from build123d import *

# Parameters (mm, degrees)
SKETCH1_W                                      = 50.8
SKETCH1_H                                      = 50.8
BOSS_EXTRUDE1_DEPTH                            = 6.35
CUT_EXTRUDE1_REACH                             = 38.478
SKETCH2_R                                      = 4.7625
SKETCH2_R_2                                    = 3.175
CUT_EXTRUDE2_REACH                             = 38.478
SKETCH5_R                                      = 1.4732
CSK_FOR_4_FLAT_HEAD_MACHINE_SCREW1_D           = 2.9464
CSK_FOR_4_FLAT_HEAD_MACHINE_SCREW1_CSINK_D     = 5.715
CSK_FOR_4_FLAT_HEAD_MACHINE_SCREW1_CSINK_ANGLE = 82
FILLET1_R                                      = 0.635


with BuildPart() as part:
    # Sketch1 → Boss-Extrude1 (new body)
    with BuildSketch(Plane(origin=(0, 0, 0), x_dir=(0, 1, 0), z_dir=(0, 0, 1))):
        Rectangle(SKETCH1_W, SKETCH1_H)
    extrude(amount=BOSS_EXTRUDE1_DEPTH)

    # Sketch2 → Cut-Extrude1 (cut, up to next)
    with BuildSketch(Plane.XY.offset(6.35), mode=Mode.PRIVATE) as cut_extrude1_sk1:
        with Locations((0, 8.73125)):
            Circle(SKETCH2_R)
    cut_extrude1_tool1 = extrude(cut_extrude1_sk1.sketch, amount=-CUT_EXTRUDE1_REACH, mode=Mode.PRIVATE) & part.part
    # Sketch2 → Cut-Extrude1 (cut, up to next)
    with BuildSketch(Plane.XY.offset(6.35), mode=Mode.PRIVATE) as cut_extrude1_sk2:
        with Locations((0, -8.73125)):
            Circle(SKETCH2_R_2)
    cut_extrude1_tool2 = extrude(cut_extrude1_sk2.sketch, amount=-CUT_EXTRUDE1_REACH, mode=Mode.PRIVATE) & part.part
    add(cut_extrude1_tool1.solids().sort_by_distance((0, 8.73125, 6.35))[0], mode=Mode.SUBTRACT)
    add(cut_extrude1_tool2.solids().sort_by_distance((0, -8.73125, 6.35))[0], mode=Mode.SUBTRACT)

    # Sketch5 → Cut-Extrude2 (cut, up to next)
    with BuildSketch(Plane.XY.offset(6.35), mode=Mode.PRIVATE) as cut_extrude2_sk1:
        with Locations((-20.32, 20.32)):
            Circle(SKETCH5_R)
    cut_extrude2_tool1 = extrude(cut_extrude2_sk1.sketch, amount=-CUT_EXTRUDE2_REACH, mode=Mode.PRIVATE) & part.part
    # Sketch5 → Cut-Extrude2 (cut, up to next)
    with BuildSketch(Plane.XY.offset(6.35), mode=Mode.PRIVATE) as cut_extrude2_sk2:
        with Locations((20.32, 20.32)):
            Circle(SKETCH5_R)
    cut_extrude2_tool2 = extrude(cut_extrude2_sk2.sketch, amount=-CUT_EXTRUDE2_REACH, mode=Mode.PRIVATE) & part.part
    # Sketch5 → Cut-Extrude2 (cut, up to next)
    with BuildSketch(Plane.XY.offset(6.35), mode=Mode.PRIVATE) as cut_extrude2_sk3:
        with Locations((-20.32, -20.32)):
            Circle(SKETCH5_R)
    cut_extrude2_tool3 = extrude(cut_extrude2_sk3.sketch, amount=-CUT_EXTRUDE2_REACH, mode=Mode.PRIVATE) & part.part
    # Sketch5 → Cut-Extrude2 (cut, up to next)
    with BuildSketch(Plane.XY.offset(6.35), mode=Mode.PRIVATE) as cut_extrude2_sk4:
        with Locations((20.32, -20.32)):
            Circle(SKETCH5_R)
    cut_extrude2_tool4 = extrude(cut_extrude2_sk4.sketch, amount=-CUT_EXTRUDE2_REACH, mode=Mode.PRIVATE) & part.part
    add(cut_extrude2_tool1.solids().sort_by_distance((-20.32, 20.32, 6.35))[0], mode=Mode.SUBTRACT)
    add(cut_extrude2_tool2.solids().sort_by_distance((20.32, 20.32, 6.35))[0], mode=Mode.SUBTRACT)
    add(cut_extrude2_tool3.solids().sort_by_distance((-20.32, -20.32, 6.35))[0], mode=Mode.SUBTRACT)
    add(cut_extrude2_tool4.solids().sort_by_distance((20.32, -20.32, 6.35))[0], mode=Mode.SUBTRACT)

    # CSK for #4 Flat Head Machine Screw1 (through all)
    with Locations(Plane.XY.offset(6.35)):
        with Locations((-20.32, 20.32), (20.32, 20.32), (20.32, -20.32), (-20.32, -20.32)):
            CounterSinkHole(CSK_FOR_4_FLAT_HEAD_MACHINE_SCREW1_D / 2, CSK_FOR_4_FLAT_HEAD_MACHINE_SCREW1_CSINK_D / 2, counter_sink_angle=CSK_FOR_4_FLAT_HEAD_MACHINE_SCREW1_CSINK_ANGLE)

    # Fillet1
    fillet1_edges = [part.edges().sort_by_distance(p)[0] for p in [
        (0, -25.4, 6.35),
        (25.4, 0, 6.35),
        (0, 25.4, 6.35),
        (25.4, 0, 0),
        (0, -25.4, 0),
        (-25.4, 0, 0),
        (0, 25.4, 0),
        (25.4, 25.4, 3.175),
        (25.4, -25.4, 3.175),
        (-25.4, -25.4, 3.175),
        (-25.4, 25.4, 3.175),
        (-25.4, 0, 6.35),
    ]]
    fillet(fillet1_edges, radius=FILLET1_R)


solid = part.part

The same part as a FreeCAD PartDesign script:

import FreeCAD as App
import Part
import Sketcher

V = App.Vector
Q = App.Units.Quantity


def edges_at(feature, points):
    """Names of the edges that pass closest to the given points."""
    edges = feature.Shape.Edges
    near = lambda p: min(range(len(edges)), key=lambda i: edges[i].distToShape(Part.Vertex(*p))[0])
    return sorted({f"Edge{near(p) + 1}" for p in points})


def add_polygon(sketch, points):
    """Adds a closed chain of lines whose ends are joined by coincident constraints."""
    first, n = sketch.GeometryCount, len(points)
    for a, b in zip(points, points[1:] + points[:1]):
        sketch.addGeometry(Part.LineSegment(App.Vector(*a, 0), App.Vector(*b, 0)), False)
    for i in range(n):
        sketch.addConstraint(Sketcher.Constraint("Coincident", first + i, 2, first + (i + 1) % n, 1))

doc = App.newDocument("Part")
body = doc.addObject("PartDesign::Body", "Body")

sketch1 = body.newObject("Sketcher::SketchObject", "Sketch")
sketch1.AttachmentSupport = (doc.getObject("XY_Plane"), [""])
sketch1.MapMode = "FlatFace"
add_polygon(sketch1, [(-25, -25), (25, -25), (25, 25), (-25, 25)])
sketch1.addConstraint(Sketcher.Constraint("Horizontal", 0))
sketch1.addConstraint(Sketcher.Constraint("Vertical", 1))
sketch1.addConstraint(Sketcher.Constraint("Horizontal", 2))
sketch1.addConstraint(Sketcher.Constraint("Vertical", 3))
sketch1.addConstraint(Sketcher.Constraint("Symmetric", 0, 2, 2, 2, -1, 1))
sketch1.addConstraint(Sketcher.Constraint("Equal", 2, 1))
sketch1.addConstraint(Sketcher.Constraint("DistanceX", 0, 1, 0, 2, Q("2 in")))
pad1 = body.newObject("PartDesign::Pad", "Pad")
pad1.Profile = sketch1
pad1.Length = Q("0.25 in")

sketch2 = body.newObject("Sketcher::SketchObject", "Sketch001")
sketch2.AttachmentSupport = (doc.getObject("XY_Plane"), [""])
sketch2.MapMode = "FlatFace"
sketch2.AttachmentOffset = App.Placement(V(0, 0, 0.25 * 25.4), App.Rotation())
sketch2.addGeometry(Part.Circle(V(0, 8.7, 0), V(0, 0, 1), 4.8), False)
sketch2.addConstraint(Sketcher.Constraint("PointOnObject", 0, 3, -2))
sketch2.addConstraint(Sketcher.Constraint("Diameter", 0, Q("0.375 in")))
sketch2.addConstraint(Sketcher.Constraint("DistanceY", -1, 1, 0, 3, Q("0.34375 in")))
pocket1 = body.newObject("PartDesign::Pocket", "Pocket")
pocket1.Profile = sketch2
pocket1.Type = "UpToFirst"

sketch3 = body.newObject("Sketcher::SketchObject", "Sketch002")
sketch3.AttachmentSupport = (doc.getObject("XY_Plane"), [""])
sketch3.MapMode = "FlatFace"
sketch3.AttachmentOffset = App.Placement(V(0, 0, 0.25 * 25.4), App.Rotation())
sketch3.addGeometry(Part.Circle(V(0, -8.7, 0), V(0, 0, 1), 3.2), False)
sketch3.addConstraint(Sketcher.Constraint("PointOnObject", 0, 3, -2))
sketch3.addConstraint(Sketcher.Constraint("Diameter", 0, Q("0.25 in")))
sketch3.addConstraint(Sketcher.Constraint("DistanceY", 0, 3, -1, 1, Q("0.34375 in")))
pocket2 = body.newObject("PartDesign::Pocket", "Pocket001")
pocket2.Profile = sketch3
pocket2.Type = "UpToFirst"

sketch4 = body.newObject("Sketcher::SketchObject", "Sketch003")
sketch4.AttachmentSupport = (doc.getObject("XY_Plane"), [""])
sketch4.MapMode = "FlatFace"
sketch4.AttachmentOffset = App.Placement(V(0, 0, 0.25 * 25.4), App.Rotation())
sketch4.addGeometry(Part.Circle(V(-20.3, 20.3, 0), V(0, 0, 1), 1.5), False)
sketch4.addConstraint(Sketcher.Constraint("Diameter", 0, Q("0.116 in")))
sketch4.addConstraint(Sketcher.Constraint("DistanceX", 0, 3, -1, 1, Q("0.8 in")))
sketch4.addConstraint(Sketcher.Constraint("DistanceY", -1, 1, 0, 3, Q("0.8 in")))
pocket3 = body.newObject("PartDesign::Pocket", "Pocket002")
pocket3.Profile = sketch4
pocket3.Type = "UpToFirst"

sketch5 = body.newObject("Sketcher::SketchObject", "Sketch004")
sketch5.AttachmentSupport = (doc.getObject("XY_Plane"), [""])
sketch5.MapMode = "FlatFace"
sketch5.AttachmentOffset = App.Placement(V(0, 0, 0.25 * 25.4), App.Rotation())
sketch5.addGeometry(Part.Circle(V(20.3, 20.3, 0), V(0, 0, 1), 1.5), False)
sketch5.addConstraint(Sketcher.Constraint("Diameter", 0, Q("0.116 in")))
sketch5.addConstraint(Sketcher.Constraint("DistanceX", -1, 1, 0, 3, Q("0.8 in")))
sketch5.addConstraint(Sketcher.Constraint("DistanceY", -1, 1, 0, 3, Q("0.8 in")))
pocket4 = body.newObject("PartDesign::Pocket", "Pocket003")
pocket4.Profile = sketch5
pocket4.Type = "UpToFirst"

sketch6 = body.newObject("Sketcher::SketchObject", "Sketch005")
sketch6.AttachmentSupport = (doc.getObject("XY_Plane"), [""])
sketch6.MapMode = "FlatFace"
sketch6.AttachmentOffset = App.Placement(V(0, 0, 0.25 * 25.4), App.Rotation())
sketch6.addGeometry(Part.Circle(V(-20.3, -20.3, 0), V(0, 0, 1), 1.5), False)
sketch6.addConstraint(Sketcher.Constraint("Diameter", 0, Q("0.116 in")))
sketch6.addConstraint(Sketcher.Constraint("DistanceX", 0, 3, -1, 1, Q("0.8 in")))
sketch6.addConstraint(Sketcher.Constraint("DistanceY", 0, 3, -1, 1, Q("0.8 in")))
pocket5 = body.newObject("PartDesign::Pocket", "Pocket004")
pocket5.Profile = sketch6
pocket5.Type = "UpToFirst"

sketch7 = body.newObject("Sketcher::SketchObject", "Sketch006")
sketch7.AttachmentSupport = (doc.getObject("XY_Plane"), [""])
sketch7.MapMode = "FlatFace"
sketch7.AttachmentOffset = App.Placement(V(0, 0, 0.25 * 25.4), App.Rotation())
sketch7.addGeometry(Part.Circle(V(20.3, -20.3, 0), V(0, 0, 1), 1.5), False)
sketch7.addConstraint(Sketcher.Constraint("Diameter", 0, Q("0.116 in")))
sketch7.addConstraint(Sketcher.Constraint("DistanceX", -1, 1, 0, 3, Q("0.8 in")))
sketch7.addConstraint(Sketcher.Constraint("DistanceY", 0, 3, -1, 1, Q("0.8 in")))
pocket6 = body.newObject("PartDesign::Pocket", "Pocket005")
pocket6.Profile = sketch7
pocket6.Type = "UpToFirst"

sketch8 = body.newObject("Sketcher::SketchObject", "Sketch007")
sketch8.AttachmentSupport = (doc.getObject("XY_Plane"), [""])
sketch8.MapMode = "FlatFace"
sketch8.AttachmentOffset = App.Placement(V(0, 0, 0.25 * 25.4), App.Rotation())
sketch8.addGeometry(Part.Circle(V(-20.3, 20.3, 0), V(0, 0, 1), 1.5), False)
sketch8.addGeometry(Part.Circle(V(20.3, 20.3, 0), V(0, 0, 1), 1.5), False)
sketch8.addGeometry(Part.Circle(V(20.3, -20.3, 0), V(0, 0, 1), 1.5), False)
sketch8.addGeometry(Part.Circle(V(-20.3, -20.3, 0), V(0, 0, 1), 1.5), False)
sketch8.addConstraint(Sketcher.Constraint("Equal", 0, 1))
sketch8.addConstraint(Sketcher.Constraint("Equal", 1, 2))
sketch8.addConstraint(Sketcher.Constraint("Equal", 2, 3))
sketch8.addConstraint(Sketcher.Constraint("Symmetric", 0, 3, 2, 3, -1, 1))
sketch8.addConstraint(Sketcher.Constraint("Symmetric", 1, 3, 3, 3, -1, 1))
sketch8.addConstraint(Sketcher.Constraint("Symmetric", 0, 3, 1, 3, -2))
sketch8.addConstraint(Sketcher.Constraint("Diameter", 0, Q("0.116 in")))
sketch8.addConstraint(Sketcher.Constraint("DistanceX", 0, 3, -1, 1, Q("0.8 in")))
sketch8.addConstraint(Sketcher.Constraint("DistanceY", -1, 1, 0, 3, Q("0.8 in")))
doc.recompute()
hole = body.newObject("PartDesign::Hole", "Hole")
hole.Profile = sketch8
hole.ThreadType = "None"
hole.Diameter = Q("0.116 in")
hole.DepthType = "ThroughAll"
hole.HoleCutType = "Countersink"
hole.HoleCutDiameter = Q("0.225 in")
hole.HoleCutCountersinkAngle = 82
doc.recompute()

fillet = body.newObject("PartDesign::Fillet", "Fillet")
fillet.Base = (hole, edges_at(hole, [
    (0, -25.4, 6.35),
    (25.4, 0, 6.35),
    (0, 25.4, 6.35),
    (25.4, 0, 0),
    (0, -25.4, 0),
    (-25.4, 0, 0),
    (0, 25.4, 0),
    (25.4, 25.4, 3.175),
    (25.4, -25.4, 3.175),
    (-25.4, -25.4, 3.175),
    (-25.4, 25.4, 3.175),
    (-25.4, 0, 6.35),
]))
fillet.Radius = Q("0.025 in")

doc.recompute()
